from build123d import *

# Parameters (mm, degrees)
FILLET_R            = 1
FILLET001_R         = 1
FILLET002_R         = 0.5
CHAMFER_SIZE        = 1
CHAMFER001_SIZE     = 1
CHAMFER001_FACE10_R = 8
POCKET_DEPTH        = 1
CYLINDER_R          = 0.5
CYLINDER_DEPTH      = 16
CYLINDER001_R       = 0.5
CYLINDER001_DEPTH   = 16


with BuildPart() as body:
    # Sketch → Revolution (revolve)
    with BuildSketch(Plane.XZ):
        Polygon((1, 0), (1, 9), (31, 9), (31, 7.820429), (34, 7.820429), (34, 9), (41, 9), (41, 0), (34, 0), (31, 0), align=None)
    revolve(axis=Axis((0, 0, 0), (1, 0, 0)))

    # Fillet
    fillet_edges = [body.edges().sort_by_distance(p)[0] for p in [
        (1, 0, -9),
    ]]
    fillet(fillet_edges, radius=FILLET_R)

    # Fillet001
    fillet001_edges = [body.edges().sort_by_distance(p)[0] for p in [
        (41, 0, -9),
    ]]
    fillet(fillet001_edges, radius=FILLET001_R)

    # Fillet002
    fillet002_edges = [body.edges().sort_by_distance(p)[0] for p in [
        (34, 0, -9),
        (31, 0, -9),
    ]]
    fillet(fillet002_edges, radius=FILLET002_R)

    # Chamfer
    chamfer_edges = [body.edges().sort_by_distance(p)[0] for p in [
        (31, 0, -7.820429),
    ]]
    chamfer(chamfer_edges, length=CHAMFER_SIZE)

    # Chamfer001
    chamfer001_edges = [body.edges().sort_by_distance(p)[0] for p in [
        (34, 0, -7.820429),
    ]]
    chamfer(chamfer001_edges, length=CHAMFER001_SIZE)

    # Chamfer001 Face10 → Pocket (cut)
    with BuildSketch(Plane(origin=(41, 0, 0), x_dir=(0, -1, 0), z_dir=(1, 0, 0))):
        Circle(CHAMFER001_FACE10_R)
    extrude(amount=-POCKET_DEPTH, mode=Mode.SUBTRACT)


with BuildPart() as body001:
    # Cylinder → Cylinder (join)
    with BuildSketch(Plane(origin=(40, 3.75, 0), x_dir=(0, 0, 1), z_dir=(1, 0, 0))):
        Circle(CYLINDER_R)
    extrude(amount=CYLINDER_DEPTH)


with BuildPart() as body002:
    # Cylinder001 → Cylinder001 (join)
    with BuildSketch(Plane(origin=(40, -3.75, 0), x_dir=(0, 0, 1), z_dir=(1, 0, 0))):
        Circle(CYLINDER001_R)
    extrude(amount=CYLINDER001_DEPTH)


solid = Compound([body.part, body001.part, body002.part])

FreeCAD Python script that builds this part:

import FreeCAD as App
import Part
import Sketcher
from FreeCAD import Vector
Q = App.Units.Quantity


def edges_at(feature, points):
    """Names of the edges that pass closest to the given points."""
    edges = feature.Shape.Edges
    near = lambda p: min(range(len(edges)), key=lambda i: edges[i].distToShape(Part.Vertex(*p))[0])
    return sorted({f"Edge{near(p) + 1}" for p in points})


def add_polygon(sketch, points):
    """Adds a closed chain of lines whose ends are joined by coincident constraints."""
    first, n = sketch.GeometryCount, len(points)
    for a, b in zip(points, points[1:] + points[:1]):
        sketch.addGeometry(Part.LineSegment(App.Vector(*a, 0), App.Vector(*b, 0)), False)
    for i in range(n):
        sketch.addConstraint(Sketcher.Constraint("Coincident", first + i, 2, first + (i + 1) % n, 1))

doc = App.newDocument("Part")
body = doc.addObject("PartDesign::Body", "Body")

# Sketch on XZ plane
sketch1 = body.newObject("Sketcher::SketchObject", "Sketch")
sketch1.AttachmentSupport = (doc.getObject("XZ_Plane"), [""])
sketch1.MapMode = "FlatFace"
add_polygon(sketch1, [(1, 9), (1, 0), (41, 0), (41, 9), (34, 9), (34, 7.8), (31, 7.8), (31, 9)])  # lines 0-7
sketch1.addConstraint([
    Sketcher.Constraint("Vertical", 0),
    Sketcher.Constraint("Horizontal", 1),
    Sketcher.Constraint("Vertical", 2),
    Sketcher.Constraint("Horizontal", 3),
    Sketcher.Constraint("Vertical", 4),
    Sketcher.Constraint("Horizontal", 5),
    Sketcher.Constraint("Vertical", 6),
    Sketcher.Constraint("Horizontal", 7),
    Sketcher.Constraint("PointOnObject", 0, 2, -1),
    Sketcher.Constraint("Horizontal", 3, 2, 6, 2),
    Sketcher.Constraint("DistanceX", 1, 1, 1, 2, Q("40 mm")),
    Sketcher.Constraint("DistanceX", 3, 2, 3, 1, Q("7 mm")),
    Sketcher.Constraint("DistanceX", 5, 2, 5, 1, Q("3 mm")),
    Sketcher.Constraint("DistanceY", 0, 2, 0, 1, Q("9 mm")),
    Sketcher.Constraint("DistanceX", -1, 1, 0, 2, Q("1 mm")),
    Sketcher.Constraint("DistanceY", 4, 2, 4, 1, Q("1.179571 mm")),
])
revolution = body.newObject("PartDesign::Revolution", "Revolution")
revolution.Profile = sketch1
revolution.ReferenceAxis = (sketch1, ["H_Axis"])
revolution.Angle = 360
doc.recompute()

fillet = body.newObject("PartDesign::Fillet", "Fillet")
fillet.Base = (revolution, edges_at(revolution, [(1, 0, -9)]))
fillet.Radius = 1
doc.recompute()

fillet2 = body.newObject("PartDesign::Fillet", "Fillet001")
fillet2.Base = (fillet, edges_at(fillet, [(41, 0, -9)]))
fillet2.Radius = 1
doc.recompute()

fillet3 = body.newObject("PartDesign::Fillet", "Fillet002")
fillet3.Base = (fillet2, edges_at(fillet2, [(34, 0, -9), (31, 0, -9)]))
fillet3.Radius = 0.5
doc.recompute()

chamfer = body.newObject("PartDesign::Chamfer", "Chamfer")
chamfer.Base = (fillet3, edges_at(fillet3, [(31, 0, -7.82)]))
chamfer.Size = 1
doc.recompute()

chamfer2 = body.newObject("PartDesign::Chamfer", "Chamfer001")
chamfer2.Base = (chamfer, edges_at(chamfer, [(34, 0, -7.82)]))
chamfer2.Size = 1

# Sketch on YZ plane
sketch2 = body.newObject("Sketcher::SketchObject", "Sketch001")
sketch2.AttachmentSupport = (doc.getObject("YZ_Plane"), [""])
sketch2.MapMode = "FlatFace"
sketch2.AttachmentOffset = App.Placement(Vector(0, 0, 41), App.Rotation())
sketch2.addGeometry(Part.Circle(Vector(0, 0, 0), Vector(0, 0, 1), 8), False)
sketch2.addConstraint([
    Sketcher.Constraint("Coincident", 0, 3, -1, 1),
    Sketcher.Constraint("Diameter", 0, Q("16 mm")),
])
pocket1 = body.newObject("PartDesign::Pocket", "Pocket")
pocket1.Profile = sketch2
pocket1.Length = 1
body2 = doc.addObject("PartDesign::Body", "Body001")

# Sketch on YZ plane
sketch3 = body2.newObject("Sketcher::SketchObject", "Sketch002")
sketch3.AttachmentSupport = (doc.getObject("YZ_Plane001"), [""])
sketch3.MapMode = "FlatFace"
sketch3.AttachmentOffset = App.Placement(Vector(0, 0, 40), App.Rotation())
sketch3.addGeometry(Part.Circle(Vector(3.8, 0, 0), Vector(0, 0, 1), 0.5), False)
sketch3.addConstraint([
    Sketcher.Constraint("PointOnObject", 0, 3, -1),
    Sketcher.Constraint("Diameter", 0, Q("1 mm")),
    Sketcher.Constraint("DistanceX", -1, 1, 0, 3, Q("3.75 mm")),
])
pad1 = body2.newObject("PartDesign::Pad", "Pad")
pad1.Profile = sketch3
pad1.Length = 16
body3 = doc.addObject("PartDesign::Body", "Body002")

# Sketch on YZ plane
sketch4 = body3.newObject("Sketcher::SketchObject", "Sketch003")
sketch4.AttachmentSupport = (doc.getObject("YZ_Plane002"), [""])
sketch4.MapMode = "FlatFace"
sketch4.AttachmentOffset = App.Placement(Vector(0, 0, 40), App.Rotation())
sketch4.addGeometry(Part.Circle(Vector(-3.8, 0, 0), Vector(0, 0, 1), 0.5), False)
sketch4.addConstraint([
    Sketcher.Constraint("PointOnObject", 0, 3, -1),
    Sketcher.Constraint("Diameter", 0, Q("1 mm")),
    Sketcher.Constraint("DistanceX", 0, 3, -1, 1, Q("3.75 mm")),
])
pad2 = body3.newObject("PartDesign::Pad", "Pad001")
pad2.Profile = sketch4
pad2.Length = 16

doc.recompute()
